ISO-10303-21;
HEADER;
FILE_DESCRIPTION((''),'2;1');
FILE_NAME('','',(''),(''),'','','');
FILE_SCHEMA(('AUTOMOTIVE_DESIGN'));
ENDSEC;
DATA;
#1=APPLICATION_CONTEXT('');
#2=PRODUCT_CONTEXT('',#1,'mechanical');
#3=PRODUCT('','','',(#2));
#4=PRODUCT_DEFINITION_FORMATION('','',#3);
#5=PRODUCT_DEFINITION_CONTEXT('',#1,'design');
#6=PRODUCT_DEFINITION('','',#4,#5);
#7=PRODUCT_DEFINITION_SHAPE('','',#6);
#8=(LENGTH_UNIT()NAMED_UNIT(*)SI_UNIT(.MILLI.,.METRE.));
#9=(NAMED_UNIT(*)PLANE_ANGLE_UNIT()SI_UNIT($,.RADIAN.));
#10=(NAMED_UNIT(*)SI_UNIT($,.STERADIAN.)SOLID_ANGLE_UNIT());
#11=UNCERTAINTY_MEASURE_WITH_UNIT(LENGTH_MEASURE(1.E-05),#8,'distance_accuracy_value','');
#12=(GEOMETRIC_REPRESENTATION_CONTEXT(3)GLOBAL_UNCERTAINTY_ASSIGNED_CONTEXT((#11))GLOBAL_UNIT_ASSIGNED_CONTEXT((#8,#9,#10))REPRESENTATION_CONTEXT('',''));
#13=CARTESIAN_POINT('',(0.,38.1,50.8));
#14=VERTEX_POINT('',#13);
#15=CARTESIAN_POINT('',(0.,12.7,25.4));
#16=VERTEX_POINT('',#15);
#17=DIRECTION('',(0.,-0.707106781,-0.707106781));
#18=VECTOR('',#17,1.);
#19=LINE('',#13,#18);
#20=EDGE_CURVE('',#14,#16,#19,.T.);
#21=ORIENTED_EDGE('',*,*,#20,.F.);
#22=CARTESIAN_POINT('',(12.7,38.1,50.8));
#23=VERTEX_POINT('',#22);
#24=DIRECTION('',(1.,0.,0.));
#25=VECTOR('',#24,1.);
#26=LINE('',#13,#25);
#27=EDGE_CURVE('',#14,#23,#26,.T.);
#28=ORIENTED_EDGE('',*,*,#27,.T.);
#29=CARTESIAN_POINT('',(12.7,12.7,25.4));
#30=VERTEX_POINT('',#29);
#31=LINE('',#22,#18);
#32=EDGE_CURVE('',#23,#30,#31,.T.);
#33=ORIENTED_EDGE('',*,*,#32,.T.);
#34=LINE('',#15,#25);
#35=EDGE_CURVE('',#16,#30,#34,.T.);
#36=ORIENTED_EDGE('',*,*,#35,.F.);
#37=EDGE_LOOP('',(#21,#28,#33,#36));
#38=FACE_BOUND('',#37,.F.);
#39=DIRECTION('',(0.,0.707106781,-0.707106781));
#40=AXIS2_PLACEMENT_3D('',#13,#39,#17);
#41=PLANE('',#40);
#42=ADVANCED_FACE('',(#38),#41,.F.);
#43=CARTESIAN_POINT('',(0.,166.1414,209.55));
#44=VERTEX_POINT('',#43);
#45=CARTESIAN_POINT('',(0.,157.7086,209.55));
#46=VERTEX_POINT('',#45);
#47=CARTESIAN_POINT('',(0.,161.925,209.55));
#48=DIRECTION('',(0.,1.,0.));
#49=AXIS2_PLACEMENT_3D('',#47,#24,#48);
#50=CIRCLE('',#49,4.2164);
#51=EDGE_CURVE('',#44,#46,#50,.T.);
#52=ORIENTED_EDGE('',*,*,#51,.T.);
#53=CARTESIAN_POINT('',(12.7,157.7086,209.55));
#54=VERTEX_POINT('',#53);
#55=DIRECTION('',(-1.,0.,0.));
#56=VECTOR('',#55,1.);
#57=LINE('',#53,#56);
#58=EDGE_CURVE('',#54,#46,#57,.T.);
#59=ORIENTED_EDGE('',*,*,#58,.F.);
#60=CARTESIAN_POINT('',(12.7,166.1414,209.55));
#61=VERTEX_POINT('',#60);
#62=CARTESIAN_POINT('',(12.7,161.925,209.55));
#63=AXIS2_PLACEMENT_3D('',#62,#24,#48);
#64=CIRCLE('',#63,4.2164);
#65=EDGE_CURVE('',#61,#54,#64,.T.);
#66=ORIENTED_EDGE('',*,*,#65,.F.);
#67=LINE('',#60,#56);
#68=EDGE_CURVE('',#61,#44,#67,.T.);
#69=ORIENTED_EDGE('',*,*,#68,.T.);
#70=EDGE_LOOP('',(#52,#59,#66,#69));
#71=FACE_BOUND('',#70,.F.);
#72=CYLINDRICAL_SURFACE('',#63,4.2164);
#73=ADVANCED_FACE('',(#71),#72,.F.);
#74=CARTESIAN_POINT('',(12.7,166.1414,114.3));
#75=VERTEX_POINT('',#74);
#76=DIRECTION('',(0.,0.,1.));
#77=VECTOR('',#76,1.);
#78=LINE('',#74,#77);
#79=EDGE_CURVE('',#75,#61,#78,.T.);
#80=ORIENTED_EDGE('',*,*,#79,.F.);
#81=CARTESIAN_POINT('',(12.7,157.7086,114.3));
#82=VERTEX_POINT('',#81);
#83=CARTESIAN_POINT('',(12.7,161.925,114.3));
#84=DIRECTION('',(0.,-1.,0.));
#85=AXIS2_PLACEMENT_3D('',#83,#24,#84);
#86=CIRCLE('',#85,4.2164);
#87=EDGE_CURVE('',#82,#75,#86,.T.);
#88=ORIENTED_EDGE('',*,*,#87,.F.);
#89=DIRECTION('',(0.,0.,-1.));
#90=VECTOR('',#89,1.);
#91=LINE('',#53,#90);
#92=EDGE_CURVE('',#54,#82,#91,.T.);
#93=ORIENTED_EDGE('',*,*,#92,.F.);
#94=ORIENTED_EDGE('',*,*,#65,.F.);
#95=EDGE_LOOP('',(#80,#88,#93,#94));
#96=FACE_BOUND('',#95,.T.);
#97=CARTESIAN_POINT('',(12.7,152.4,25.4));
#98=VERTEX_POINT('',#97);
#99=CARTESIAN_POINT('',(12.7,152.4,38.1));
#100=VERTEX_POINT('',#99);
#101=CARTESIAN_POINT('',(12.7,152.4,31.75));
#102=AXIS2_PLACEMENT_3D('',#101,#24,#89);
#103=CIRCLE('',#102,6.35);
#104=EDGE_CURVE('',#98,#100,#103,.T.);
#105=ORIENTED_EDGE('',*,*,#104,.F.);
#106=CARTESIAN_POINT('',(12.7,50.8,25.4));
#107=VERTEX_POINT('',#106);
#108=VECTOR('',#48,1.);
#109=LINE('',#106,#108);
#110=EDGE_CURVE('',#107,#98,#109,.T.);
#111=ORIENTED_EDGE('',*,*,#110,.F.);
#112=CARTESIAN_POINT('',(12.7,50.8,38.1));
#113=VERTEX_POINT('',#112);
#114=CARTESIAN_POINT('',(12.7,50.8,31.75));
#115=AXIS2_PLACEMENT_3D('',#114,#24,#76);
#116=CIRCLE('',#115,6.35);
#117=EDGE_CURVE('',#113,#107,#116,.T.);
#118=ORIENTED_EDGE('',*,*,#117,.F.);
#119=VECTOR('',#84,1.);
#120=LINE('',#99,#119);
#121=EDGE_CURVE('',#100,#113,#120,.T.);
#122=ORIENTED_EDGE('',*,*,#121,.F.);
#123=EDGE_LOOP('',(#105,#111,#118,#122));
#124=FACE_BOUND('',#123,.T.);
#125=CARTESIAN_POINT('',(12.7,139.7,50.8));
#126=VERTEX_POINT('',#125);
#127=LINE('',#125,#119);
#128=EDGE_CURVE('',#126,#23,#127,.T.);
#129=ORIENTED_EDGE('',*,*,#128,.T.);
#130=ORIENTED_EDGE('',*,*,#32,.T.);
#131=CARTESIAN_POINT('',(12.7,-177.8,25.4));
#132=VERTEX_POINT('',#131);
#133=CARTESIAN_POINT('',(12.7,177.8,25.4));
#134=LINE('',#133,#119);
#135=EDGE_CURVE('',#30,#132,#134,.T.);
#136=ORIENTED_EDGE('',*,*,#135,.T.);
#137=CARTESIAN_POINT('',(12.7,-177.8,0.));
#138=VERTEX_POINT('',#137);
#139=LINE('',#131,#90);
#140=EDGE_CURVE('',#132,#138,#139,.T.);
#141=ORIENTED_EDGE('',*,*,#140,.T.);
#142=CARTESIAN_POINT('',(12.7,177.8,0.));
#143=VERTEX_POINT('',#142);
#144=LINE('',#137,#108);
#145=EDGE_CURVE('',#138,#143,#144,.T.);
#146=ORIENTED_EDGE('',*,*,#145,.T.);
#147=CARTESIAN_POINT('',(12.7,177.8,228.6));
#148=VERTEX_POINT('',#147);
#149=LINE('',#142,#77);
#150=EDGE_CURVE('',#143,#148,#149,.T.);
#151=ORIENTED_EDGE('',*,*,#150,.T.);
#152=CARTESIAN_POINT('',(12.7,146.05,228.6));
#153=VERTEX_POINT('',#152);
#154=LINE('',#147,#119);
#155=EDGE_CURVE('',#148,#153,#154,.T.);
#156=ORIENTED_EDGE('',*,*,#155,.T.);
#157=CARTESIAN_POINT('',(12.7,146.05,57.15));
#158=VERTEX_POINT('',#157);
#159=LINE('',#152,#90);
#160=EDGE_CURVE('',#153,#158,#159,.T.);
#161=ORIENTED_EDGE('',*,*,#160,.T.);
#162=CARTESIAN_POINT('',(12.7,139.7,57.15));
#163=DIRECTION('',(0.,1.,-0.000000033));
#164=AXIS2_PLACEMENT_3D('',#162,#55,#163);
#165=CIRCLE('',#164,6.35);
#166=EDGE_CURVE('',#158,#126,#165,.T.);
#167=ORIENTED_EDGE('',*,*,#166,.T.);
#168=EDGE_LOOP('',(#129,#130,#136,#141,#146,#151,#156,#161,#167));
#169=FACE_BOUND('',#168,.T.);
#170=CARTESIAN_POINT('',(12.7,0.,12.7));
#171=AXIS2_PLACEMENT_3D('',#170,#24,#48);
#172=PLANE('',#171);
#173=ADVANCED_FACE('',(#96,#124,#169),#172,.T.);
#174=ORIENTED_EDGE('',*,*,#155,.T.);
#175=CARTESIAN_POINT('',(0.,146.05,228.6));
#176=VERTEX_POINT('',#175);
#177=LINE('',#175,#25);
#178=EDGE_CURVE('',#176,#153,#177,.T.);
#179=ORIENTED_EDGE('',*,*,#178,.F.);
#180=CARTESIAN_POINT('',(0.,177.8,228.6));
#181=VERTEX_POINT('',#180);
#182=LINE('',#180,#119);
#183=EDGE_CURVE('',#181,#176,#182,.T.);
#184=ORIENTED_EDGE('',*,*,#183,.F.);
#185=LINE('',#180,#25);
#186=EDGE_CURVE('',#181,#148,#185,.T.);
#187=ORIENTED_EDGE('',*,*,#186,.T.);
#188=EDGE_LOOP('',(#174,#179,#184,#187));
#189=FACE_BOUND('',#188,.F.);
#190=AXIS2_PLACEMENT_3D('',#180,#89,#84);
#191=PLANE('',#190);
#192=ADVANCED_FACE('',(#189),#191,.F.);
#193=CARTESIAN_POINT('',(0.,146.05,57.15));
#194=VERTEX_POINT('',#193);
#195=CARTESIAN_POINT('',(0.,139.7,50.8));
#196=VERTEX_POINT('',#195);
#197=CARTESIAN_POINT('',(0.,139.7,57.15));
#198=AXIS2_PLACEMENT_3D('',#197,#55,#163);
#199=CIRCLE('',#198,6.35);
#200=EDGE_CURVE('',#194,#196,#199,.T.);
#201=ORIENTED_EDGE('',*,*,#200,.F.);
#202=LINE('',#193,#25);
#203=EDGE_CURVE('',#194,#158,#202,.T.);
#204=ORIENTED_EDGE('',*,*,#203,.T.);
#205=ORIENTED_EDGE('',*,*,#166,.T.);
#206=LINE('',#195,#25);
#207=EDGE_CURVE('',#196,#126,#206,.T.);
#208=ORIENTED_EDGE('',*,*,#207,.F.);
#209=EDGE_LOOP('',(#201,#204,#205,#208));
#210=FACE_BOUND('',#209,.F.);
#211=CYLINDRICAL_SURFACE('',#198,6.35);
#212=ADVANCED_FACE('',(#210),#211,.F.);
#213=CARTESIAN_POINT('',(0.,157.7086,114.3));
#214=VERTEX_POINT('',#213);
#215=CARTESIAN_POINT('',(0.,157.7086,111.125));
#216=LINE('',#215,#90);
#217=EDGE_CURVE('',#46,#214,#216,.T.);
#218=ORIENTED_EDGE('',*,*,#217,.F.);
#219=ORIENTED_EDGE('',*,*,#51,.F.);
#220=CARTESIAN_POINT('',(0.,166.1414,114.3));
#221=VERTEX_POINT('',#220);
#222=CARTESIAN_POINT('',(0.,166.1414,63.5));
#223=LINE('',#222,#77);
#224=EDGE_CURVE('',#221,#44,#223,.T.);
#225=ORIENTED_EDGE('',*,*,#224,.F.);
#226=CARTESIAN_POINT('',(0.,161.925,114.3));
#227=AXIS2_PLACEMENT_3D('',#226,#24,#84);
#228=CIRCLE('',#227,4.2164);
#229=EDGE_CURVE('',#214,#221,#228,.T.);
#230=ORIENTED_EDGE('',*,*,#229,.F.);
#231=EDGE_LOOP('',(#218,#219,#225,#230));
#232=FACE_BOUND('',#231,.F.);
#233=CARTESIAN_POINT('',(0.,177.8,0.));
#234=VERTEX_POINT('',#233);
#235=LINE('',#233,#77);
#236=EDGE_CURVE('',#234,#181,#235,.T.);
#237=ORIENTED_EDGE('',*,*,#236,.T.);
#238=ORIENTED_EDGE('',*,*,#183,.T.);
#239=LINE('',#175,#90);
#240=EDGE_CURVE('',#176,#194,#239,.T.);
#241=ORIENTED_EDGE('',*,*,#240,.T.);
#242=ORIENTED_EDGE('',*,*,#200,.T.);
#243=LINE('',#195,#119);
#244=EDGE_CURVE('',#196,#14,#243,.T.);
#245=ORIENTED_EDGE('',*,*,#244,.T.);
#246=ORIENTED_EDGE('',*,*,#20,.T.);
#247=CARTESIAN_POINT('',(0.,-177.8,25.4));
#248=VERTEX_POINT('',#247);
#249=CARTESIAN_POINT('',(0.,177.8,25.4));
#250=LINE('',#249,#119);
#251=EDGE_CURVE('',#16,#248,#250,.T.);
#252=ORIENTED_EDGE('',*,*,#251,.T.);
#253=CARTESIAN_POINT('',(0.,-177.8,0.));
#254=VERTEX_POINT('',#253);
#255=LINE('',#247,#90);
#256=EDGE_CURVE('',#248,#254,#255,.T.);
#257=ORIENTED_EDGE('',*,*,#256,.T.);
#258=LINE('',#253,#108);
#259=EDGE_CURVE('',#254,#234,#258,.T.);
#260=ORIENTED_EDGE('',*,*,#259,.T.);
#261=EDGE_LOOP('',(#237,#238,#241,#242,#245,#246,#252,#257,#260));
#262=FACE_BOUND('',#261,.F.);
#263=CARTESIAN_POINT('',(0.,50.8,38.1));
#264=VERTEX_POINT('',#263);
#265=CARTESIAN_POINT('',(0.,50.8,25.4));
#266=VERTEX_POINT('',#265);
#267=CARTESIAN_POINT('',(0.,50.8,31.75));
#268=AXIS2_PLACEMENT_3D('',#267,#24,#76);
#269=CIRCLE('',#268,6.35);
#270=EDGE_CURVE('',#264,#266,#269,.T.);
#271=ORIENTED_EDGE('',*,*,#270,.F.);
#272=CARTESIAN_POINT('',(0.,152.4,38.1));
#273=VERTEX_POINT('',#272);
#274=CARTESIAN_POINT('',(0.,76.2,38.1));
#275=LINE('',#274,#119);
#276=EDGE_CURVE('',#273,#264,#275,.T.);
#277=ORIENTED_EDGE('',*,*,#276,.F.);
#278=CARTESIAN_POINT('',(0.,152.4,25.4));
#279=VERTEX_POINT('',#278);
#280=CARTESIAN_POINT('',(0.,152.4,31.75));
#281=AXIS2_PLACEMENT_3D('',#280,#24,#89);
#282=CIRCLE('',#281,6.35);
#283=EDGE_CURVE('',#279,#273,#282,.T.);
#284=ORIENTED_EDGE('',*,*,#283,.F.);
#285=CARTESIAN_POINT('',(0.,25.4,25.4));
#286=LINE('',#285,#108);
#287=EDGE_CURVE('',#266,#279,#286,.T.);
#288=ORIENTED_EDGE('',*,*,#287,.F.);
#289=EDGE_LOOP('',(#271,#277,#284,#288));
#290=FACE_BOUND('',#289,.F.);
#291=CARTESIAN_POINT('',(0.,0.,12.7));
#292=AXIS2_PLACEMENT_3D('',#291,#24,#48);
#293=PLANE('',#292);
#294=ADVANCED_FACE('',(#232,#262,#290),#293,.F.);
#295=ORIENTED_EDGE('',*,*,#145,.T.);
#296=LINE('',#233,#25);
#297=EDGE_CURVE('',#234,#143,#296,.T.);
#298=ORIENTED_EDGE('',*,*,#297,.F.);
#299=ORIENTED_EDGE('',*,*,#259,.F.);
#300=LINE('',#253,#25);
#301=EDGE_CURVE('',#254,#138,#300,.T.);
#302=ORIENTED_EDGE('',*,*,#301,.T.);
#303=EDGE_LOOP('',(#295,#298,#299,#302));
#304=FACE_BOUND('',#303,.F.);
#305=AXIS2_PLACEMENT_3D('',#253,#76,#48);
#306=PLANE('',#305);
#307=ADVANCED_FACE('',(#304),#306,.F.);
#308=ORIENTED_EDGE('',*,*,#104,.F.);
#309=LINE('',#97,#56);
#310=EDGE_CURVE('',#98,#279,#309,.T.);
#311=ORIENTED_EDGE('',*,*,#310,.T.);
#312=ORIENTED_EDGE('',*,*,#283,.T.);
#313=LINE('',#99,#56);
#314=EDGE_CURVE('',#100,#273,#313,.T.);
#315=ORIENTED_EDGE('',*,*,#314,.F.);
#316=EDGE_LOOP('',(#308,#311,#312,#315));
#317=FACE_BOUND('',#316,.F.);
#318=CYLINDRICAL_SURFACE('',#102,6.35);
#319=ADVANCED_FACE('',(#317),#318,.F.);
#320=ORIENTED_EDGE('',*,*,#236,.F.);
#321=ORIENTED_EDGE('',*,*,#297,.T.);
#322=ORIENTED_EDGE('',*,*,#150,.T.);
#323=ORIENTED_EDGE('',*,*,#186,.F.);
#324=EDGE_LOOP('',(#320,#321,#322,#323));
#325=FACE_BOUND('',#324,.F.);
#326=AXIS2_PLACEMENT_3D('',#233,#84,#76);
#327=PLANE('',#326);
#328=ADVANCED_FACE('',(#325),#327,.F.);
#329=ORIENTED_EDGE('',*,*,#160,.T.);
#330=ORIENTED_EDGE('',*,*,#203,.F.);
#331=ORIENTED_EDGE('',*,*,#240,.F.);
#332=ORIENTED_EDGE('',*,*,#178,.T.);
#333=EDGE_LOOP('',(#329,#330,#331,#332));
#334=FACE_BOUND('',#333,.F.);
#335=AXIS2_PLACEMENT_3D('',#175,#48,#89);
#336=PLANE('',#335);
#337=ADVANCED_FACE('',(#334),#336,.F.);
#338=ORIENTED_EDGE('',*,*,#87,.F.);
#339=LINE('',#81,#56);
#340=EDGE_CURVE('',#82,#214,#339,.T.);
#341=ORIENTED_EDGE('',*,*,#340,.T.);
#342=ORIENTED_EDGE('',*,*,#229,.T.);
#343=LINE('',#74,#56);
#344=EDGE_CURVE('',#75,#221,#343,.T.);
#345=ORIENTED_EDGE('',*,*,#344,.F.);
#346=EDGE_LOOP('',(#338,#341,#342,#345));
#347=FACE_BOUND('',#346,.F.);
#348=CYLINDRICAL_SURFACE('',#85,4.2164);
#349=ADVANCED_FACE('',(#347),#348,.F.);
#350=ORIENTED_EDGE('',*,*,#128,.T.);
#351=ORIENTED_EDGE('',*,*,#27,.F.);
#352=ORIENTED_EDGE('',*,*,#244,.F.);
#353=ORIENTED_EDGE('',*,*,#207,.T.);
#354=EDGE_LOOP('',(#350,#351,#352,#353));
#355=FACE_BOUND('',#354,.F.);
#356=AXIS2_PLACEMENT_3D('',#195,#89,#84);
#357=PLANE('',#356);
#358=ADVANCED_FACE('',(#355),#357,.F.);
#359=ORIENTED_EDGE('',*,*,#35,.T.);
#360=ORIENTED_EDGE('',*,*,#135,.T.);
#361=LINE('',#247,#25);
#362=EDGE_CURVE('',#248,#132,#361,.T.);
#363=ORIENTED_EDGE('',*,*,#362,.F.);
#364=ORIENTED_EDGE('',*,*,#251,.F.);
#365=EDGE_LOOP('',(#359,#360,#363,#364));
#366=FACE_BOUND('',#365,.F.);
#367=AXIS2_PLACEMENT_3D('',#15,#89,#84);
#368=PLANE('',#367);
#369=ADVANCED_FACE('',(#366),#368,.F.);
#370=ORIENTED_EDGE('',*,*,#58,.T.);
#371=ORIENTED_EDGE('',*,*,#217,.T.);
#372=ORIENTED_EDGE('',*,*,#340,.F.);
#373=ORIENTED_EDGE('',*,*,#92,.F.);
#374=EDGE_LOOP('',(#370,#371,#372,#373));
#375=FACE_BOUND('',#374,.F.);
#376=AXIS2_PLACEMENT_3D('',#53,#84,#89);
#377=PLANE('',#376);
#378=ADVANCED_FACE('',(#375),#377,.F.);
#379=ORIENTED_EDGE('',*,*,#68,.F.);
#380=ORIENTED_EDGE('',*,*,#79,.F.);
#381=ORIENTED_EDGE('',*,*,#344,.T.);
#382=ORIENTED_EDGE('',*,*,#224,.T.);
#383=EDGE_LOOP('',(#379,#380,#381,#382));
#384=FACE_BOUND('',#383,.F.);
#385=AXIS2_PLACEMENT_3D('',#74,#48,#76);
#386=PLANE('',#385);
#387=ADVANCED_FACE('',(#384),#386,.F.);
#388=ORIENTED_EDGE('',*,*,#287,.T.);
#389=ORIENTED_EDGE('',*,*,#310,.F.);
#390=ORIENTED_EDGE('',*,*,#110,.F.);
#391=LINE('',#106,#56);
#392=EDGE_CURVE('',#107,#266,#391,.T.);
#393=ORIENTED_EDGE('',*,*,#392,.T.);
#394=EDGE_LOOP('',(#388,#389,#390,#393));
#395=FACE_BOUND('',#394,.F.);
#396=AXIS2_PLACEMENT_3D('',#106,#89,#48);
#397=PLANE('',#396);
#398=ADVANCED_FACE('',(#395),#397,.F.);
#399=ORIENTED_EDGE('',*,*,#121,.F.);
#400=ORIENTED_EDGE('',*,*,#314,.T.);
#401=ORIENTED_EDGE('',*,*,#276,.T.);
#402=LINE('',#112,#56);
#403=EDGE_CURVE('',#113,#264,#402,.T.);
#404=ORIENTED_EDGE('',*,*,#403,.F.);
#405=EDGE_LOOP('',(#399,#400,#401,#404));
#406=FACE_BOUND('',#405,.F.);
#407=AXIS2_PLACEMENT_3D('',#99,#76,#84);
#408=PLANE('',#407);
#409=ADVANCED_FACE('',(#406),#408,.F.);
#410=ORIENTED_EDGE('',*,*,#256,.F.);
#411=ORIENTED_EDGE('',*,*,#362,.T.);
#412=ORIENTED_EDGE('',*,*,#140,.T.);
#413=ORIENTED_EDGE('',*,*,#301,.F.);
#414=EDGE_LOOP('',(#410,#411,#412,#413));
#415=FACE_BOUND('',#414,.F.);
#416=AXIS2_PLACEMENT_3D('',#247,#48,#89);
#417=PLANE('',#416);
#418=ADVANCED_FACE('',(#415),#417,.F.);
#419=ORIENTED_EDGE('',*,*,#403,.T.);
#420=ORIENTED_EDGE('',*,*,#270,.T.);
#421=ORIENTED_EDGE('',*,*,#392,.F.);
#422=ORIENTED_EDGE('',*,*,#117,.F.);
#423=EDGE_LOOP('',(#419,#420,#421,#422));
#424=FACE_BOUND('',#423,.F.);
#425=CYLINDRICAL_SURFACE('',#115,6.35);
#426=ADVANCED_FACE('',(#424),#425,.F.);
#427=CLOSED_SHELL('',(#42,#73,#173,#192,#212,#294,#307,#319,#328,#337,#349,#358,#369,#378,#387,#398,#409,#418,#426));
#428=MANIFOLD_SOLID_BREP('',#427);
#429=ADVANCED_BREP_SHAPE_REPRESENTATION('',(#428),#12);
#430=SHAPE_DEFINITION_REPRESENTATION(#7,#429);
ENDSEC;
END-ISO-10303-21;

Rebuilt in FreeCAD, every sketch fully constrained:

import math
import FreeCAD as App
import Part
import Sketcher
Q = App.Units.Quantity

doc = App.newDocument("Part")
params = doc.addObject("Spreadsheet::Sheet", "Params")
for row, (alias, value) in enumerate([
    ("sketch1_width", "4 in"),
    ("sketch1_width2", "14 in"),
    ("sketch1_height", "9 in"),
    ("sketch1_height2", "1 in"),
    ("sketch1_radius", "0.25 in"),
    ("pad1_length", "0.5 in"),
    ("sketch2_radius", "0.166 in"),
    ("sketch2_height", "3.75 in"),
    ("sketch3_width", "4 in"),
    ("sketch3_radius", "0.25 in"),
], start=1):
    params.set(f"A{row}", alias)
    params.set(f"B{row}", "=" + value)
    params.setAlias(f"B{row}", alias)

body = doc.addObject("PartDesign::Body", "Body")

# Sketch on YZ plane
sketch1 = body.newObject("Sketcher::SketchObject", "Sketch")
sketch1.AttachmentSupport = (doc.getObject("YZ_Plane"), [""])
sketch1.MapMode = "FlatFace"
sketch1.addGeometry([
    Part.LineSegment(App.Vector(178, 0, 0), App.Vector(178, 229, 0)),  # 0
    Part.LineSegment(App.Vector(178, 229, 0), App.Vector(146, 229, 0)),  # 1
    Part.LineSegment(App.Vector(146, 229, 0), App.Vector(146, 57, 0)),  # 2
    Part.ArcOfCircle(Part.Circle(App.Vector(140, 57, 0), App.Vector(0, 0, 1), 6), math.radians(-90), math.radians(0)),  # 3
    Part.LineSegment(App.Vector(140, 51, 0), App.Vector(38, 51, 0)),  # 4
    Part.LineSegment(App.Vector(38, 51, 0), App.Vector(13, 25, 0)),  # 5
    Part.LineSegment(App.Vector(13, 25, 0), App.Vector(-178, 25, 0)),  # 6
    Part.LineSegment(App.Vector(-178, 25, 0), App.Vector(-178, 0, 0)),  # 7
    Part.LineSegment(App.Vector(-178, 0, 0), App.Vector(178, 0, 0)),  # 8
], False)
sketch1.addConstraint([
    Sketcher.Constraint("Coincident", 0, 2, 1, 1),
    Sketcher.Constraint("Coincident", 1, 2, 2, 1),
    Sketcher.Constraint("Tangent", 2, 2, 3, 2),
    Sketcher.Constraint("Tangent", 3, 1, 4, 1),
    Sketcher.Constraint("Coincident", 4, 2, 5, 1),
    Sketcher.Constraint("Coincident", 5, 2, 6, 1),
    Sketcher.Constraint("Coincident", 6, 2, 7, 1),
    Sketcher.Constraint("Coincident", 7, 2, 8, 1),
    Sketcher.Constraint("Coincident", 8, 2, 0, 1),
    Sketcher.Constraint("Vertical", 0),
    Sketcher.Constraint("Horizontal", 1),
    Sketcher.Constraint("Vertical", 2),
    Sketcher.Constraint("Horizontal", 4),
    Sketcher.Constraint("Horizontal", 6),
    Sketcher.Constraint("Vertical", 7),
    Sketcher.Constraint("Horizontal", 8),
    Sketcher.Constraint("Symmetric", 7, 2, 8, 2, -1, 1),
    Sketcher.Constraint("DistanceX", 4, 2, 4, 1, Q("4 in")),
    Sketcher.Constraint("DistanceX", 8, 1, 8, 2, Q("14 in")),
    Sketcher.Constraint("DistanceY", 0, 1, 0, 2, Q("9 in")),
    Sketcher.Constraint("DistanceY", 7, 2, 7, 1, Q("1 in")),
    Sketcher.Constraint("Radius", 3, Q("0.25 in")),
    Sketcher.Constraint("DistanceX", 6, 2, 6, 1, Q("7.5 in")),
    Sketcher.Constraint("DistanceY", -1, 1, 3, 1, Q("2 in")),
    Sketcher.Constraint("Angle", 5, Q("-135 deg")),
])
sketch1.setExpression("Constraints[17]", "Params.sketch1_width")
sketch1.setExpression("Constraints[18]", "Params.sketch1_width2")
sketch1.setExpression("Constraints[19]", "Params.sketch1_height")
sketch1.setExpression("Constraints[20]", "Params.sketch1_height2")
sketch1.setExpression("Constraints[21]", "Params.sketch1_radius")
pad1 = body.newObject("PartDesign::Pad", "Pad")
pad1.Profile = sketch1
pad1.setExpression("Length", "Params.pad1_length")

# Sketch on YZ plane
sketch2 = body.newObject("Sketcher::SketchObject", "Sketch001")
sketch2.AttachmentSupport = (doc.getObject("YZ_Plane"), [""])
sketch2.MapMode = "FlatFace"
sketch2.AttachmentOffset = App.Placement(App.Vector(0, 0, 0.5 * 25.4), App.Rotation())
sketch2.addGeometry([
    Part.ArcOfCircle(Part.Circle(App.Vector(161.9, 209.6, 0), App.Vector(0, 0, 1), 4.2), math.radians(0), math.radians(180)),
    Part.LineSegment(App.Vector(157.7, 209.6, 0), App.Vector(157.7, 114.3, 0)),
    Part.ArcOfCircle(Part.Circle(App.Vector(161.9, 114.3, 0), App.Vector(0, 0, 1), 4.2), math.radians(180), math.radians(360)),
    Part.LineSegment(App.Vector(166.1, 114.3, 0), App.Vector(166.1, 209.6, 0)),
], False)
sketch2.addConstraint([
    Sketcher.Constraint("Tangent", 0, 2, 1, 1),
    Sketcher.Constraint("Tangent", 1, 2, 2, 1),
    Sketcher.Constraint("Tangent", 2, 2, 3, 1),
    Sketcher.Constraint("Tangent", 3, 2, 0, 1),
    Sketcher.Constraint("Vertical", 1),
    Sketcher.Constraint("Vertical", 3),
    Sketcher.Constraint("Radius", 0, Q("0.166 in")),
    Sketcher.Constraint("DistanceY", 1, 2, 1, 1, Q("3.75 in")),
    Sketcher.Constraint("DistanceY", -1, 1, 2, 3, Q("4.5 in")),
    Sketcher.Constraint("DistanceX", -1, 1, 0, 3, Q("6.375 in")),
])
sketch2.setExpression("Constraints[6]", "Params.sketch2_radius")
sketch2.setExpression("Constraints[7]", "Params.sketch2_height")
pocket1 = body.newObject("PartDesign::Pocket", "Pocket")
pocket1.Profile = sketch2
pocket1.Type = "ThroughAll"

# Sketch on YZ plane
sketch3 = body.newObject("Sketcher::SketchObject", "Sketch002")
sketch3.AttachmentSupport = (doc.getObject("YZ_Plane"), [""])
sketch3.MapMode = "FlatFace"
sketch3.AttachmentOffset = App.Placement(App.Vector(0, 0, 0.5 * 25.4), App.Rotation())
sketch3.addGeometry([
    Part.LineSegment(App.Vector(152, 38, 0), App.Vector(51, 38, 0)),
    Part.ArcOfCircle(Part.Circle(App.Vector(51, 32, 0), App.Vector(0, 0, 1), 6), math.radians(90), math.radians(270)),
    Part.LineSegment(App.Vector(51, 25, 0), App.Vector(152, 25, 0)),
    Part.ArcOfCircle(Part.Circle(App.Vector(152, 32, 0), App.Vector(0, 0, 1), 6), math.radians(-90), math.radians(90)),
], False)
sketch3.addConstraint([
    Sketcher.Constraint("Tangent", 0, 2, 1, 1),
    Sketcher.Constraint("Tangent", 1, 2, 2, 1),
    Sketcher.Constraint("Tangent", 2, 2, 3, 1),
    Sketcher.Constraint("Tangent", 3, 2, 0, 1),
    Sketcher.Constraint("Horizontal", 0),
    Sketcher.Constraint("Horizontal", 2),
    Sketcher.Constraint("DistanceX", 0, 2, 0, 1, Q("4 in")),
    Sketcher.Constraint("Radius", 1, Q("0.25 in")),
    Sketcher.Constraint("DistanceX", -1, 1, 1, 3, Q("2 in")),
    Sketcher.Constraint("DistanceY", -1, 1, 1, 2, Q("1 in")),
])
sketch3.setExpression("Constraints[6]", "Params.sketch3_width")
sketch3.setExpression("Constraints[7]", "Params.sketch3_radius")
pocket2 = body.newObject("PartDesign::Pocket", "Pocket001")
pocket2.Profile = sketch3
pocket2.Type = "ThroughAll"

doc.recompute()
